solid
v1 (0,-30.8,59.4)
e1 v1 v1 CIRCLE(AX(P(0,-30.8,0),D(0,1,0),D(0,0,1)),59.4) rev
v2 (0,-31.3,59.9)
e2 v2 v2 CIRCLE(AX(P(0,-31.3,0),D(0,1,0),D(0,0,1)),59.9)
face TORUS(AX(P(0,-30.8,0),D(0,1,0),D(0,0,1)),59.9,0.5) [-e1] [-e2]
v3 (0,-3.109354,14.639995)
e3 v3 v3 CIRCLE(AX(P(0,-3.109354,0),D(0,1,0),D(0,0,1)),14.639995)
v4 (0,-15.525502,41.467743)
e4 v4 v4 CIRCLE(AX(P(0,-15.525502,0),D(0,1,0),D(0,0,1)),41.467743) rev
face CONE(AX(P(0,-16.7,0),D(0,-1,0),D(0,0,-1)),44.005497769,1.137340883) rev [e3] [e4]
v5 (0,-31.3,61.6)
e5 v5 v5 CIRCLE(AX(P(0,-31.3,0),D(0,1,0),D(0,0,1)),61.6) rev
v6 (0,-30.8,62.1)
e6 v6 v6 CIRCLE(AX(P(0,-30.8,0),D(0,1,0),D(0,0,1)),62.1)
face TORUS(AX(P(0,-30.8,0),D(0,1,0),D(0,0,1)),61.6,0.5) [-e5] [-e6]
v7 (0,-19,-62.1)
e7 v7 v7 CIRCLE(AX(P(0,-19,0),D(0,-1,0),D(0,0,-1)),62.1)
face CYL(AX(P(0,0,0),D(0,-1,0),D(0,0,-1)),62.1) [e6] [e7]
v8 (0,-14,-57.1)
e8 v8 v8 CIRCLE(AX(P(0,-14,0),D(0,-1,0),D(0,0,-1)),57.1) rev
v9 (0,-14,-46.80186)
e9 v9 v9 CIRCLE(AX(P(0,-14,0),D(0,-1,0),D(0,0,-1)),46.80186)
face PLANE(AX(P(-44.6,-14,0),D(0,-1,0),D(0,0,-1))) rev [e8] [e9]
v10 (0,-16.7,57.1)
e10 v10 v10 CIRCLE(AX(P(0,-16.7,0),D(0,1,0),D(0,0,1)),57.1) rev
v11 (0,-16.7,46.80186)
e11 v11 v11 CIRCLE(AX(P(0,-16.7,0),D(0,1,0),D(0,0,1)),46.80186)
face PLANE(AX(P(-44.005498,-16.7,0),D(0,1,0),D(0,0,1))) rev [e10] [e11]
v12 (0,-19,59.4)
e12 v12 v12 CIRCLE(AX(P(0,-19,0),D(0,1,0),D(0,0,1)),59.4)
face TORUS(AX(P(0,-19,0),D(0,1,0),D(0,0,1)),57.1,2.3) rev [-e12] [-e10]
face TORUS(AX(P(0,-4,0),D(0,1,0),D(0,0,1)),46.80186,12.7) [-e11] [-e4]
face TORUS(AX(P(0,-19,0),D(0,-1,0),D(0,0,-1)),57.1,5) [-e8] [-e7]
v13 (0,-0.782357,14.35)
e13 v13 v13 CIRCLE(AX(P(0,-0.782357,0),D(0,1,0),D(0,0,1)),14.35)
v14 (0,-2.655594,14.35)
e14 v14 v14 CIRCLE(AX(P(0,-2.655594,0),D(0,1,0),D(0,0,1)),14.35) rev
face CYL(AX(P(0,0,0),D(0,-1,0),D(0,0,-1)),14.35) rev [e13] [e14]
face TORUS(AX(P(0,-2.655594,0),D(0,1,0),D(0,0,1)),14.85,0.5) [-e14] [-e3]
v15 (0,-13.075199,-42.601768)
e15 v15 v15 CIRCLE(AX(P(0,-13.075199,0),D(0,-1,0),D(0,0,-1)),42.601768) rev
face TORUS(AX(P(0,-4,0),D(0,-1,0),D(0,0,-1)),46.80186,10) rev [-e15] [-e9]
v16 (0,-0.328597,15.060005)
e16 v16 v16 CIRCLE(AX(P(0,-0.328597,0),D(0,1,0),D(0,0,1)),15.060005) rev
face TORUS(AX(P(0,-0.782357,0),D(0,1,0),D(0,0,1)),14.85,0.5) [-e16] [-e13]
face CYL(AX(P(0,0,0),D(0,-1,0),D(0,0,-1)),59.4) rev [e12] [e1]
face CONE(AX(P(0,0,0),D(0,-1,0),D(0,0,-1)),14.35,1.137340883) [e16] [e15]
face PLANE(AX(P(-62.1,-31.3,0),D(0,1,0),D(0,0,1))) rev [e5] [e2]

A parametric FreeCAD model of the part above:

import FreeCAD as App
import Part
import Sketcher
Q = App.Units.Quantity


def edges_at(feature, points):
    """Names of the edges that pass closest to the given points."""
    edges = feature.Shape.Edges
    near = lambda p: min(range(len(edges)), key=lambda i: edges[i].distToShape(Part.Vertex(*p))[0])
    return sorted({f"Edge{near(p) + 1}" for p in points})


def add_polygon(sketch, points):
    """Adds a closed chain of lines whose ends are joined by coincident constraints."""
    first, n = sketch.GeometryCount, len(points)
    for a, b in zip(points, points[1:] + points[:1]):
        sketch.addGeometry(Part.LineSegment(App.Vector(*a, 0), App.Vector(*b, 0)), False)
    for i in range(n):
        sketch.addConstraint(Sketcher.Constraint("Coincident", first + i, 2, first + (i + 1) % n, 1))

doc = App.newDocument("Part")
params = doc.addObject("Spreadsheet::Sheet", "Params")
for row, (alias, value) in enumerate([
    ("sketch1_width", "17.5 mm"),
    ("sketch1_width2", "2.7 mm"),
    ("sketch1_height", "17.3 mm"),
    ("sketch1_height2", "14.6 mm"),
    ("revolution_angle", "360 deg"),
    ("fillet_radius", "5 mm"),
    ("fillet2_radius", "2.3 mm"),
    ("fillet3_radius", "10 mm"),
    ("fillet4_radius", "12.7 mm"),
    ("fillet5_radius", "0.5 mm"),
], start=1):
    params.set(f"A{row}", alias)
    params.set(f"B{row}", "=" + value)
    params.setAlias(f"B{row}", alias)

body = doc.addObject("PartDesign::Body", "Body")

# Sketch on XY plane
sketch1 = body.newObject("Sketcher::SketchObject", "Sketch")
sketch1.AttachmentSupport = (doc.getObject("XY_Plane"), [""])
sketch1.MapMode = "FlatFace"
add_polygon(sketch1, [(-14.3, 0), (-44.6, -14), (-62.1, -14), (-62.1, -31.3), (-59.4, -31.3), (-59.4, -16.7), (-44, -16.7), (-14.3, -3)])  # lines 0-7
sketch1.addConstraint(Sketcher.Constraint("Horizontal", 1))
sketch1.addConstraint(Sketcher.Constraint("Vertical", 2))
sketch1.addConstraint(Sketcher.Constraint("Horizontal", 3))
sketch1.addConstraint(Sketcher.Constraint("Vertical", 4))
sketch1.addConstraint(Sketcher.Constraint("Horizontal", 5))
sketch1.addConstraint(Sketcher.Constraint("Vertical", 7))
sketch1.addConstraint(Sketcher.Constraint("PointOnObject", 7, 2, -1))
sketch1.addConstraint(Sketcher.Constraint("Parallel", 0, 6))
sketch1.addConstraint(Sketcher.Constraint("DistanceX", 1, 2, 1, 1, Q("17.5 mm")))
sketch1.addConstraint(Sketcher.Constraint("DistanceX", 3, 1, 3, 2, Q("2.7 mm")))
sketch1.addConstraint(Sketcher.Constraint("DistanceY", 2, 2, 2, 1, Q("17.3 mm")))
sketch1.addConstraint(Sketcher.Constraint("DistanceY", 4, 1, 4, 2, Q("14.6 mm")))
sketch1.addConstraint(Sketcher.Constraint("DistanceY", 0, 2, -1, 1, Q("14 mm")))
sketch1.addConstraint(Sketcher.Constraint("DistanceX", 0, 2, -1, 1, Q("44.6 mm")))
sketch1.addConstraint(Sketcher.Constraint("DistanceX", 6, 2, -1, 1, Q("14.35 mm")))
sketch1.addConstraint(Sketcher.Constraint("DistanceY", 7, 1, 7, 2, Q("2.975142 mm")))
sketch1.setExpression("Constraints[16]", "Params.sketch1_width")
sketch1.setExpression("Constraints[17]", "Params.sketch1_width2")
sketch1.setExpression("Constraints[18]", "Params.sketch1_height")
sketch1.setExpression("Constraints[19]", "Params.sketch1_height2")
revolution = body.newObject("PartDesign::Revolution", "Revolution")
revolution.Profile = sketch1
revolution.ReferenceAxis = (sketch1, ["V_Axis"])
revolution.setExpression("Angle", "Params.revolution_angle")
doc.recompute()

fillet = body.newObject("PartDesign::Fillet", "Fillet")
fillet.Base = (revolution, edges_at(revolution, [(0, -14, 62.1)]))
fillet.setExpression("Radius", "Params.fillet_radius")
doc.recompute()

fillet2 = body.newObject("PartDesign::Fillet", "Fillet001")
fillet2.Base = (fillet, edges_at(fillet, [(0, -16.7, 59.4)]))
fillet2.setExpression("Radius", "Params.fillet2_radius")
doc.recompute()

fillet3 = body.newObject("PartDesign::Fillet", "Fillet002")
fillet3.Base = (fillet2, edges_at(fillet2, [(0, -14, 44.6)]))
fillet3.setExpression("Radius", "Params.fillet3_radius")
doc.recompute()

fillet4 = body.newObject("PartDesign::Fillet", "Fillet003")
fillet4.Base = (fillet3, edges_at(fillet3, [(0, -16.7, 44.005)]))
fillet4.setExpression("Radius", "Params.fillet4_radius")
doc.recompute()

fillet5 = body.newObject("PartDesign::Fillet", "Fillet004")
fillet5.Base = (fillet4, edges_at(fillet4, [
    (0, 0, 14.35),
    (0, -31.3, 62.1),
    (0, -31.3, 59.4),
    (0, -2.975, 14.35),
]))
fillet5.setExpression("Radius", "Params.fillet5_radius")

doc.recompute()
